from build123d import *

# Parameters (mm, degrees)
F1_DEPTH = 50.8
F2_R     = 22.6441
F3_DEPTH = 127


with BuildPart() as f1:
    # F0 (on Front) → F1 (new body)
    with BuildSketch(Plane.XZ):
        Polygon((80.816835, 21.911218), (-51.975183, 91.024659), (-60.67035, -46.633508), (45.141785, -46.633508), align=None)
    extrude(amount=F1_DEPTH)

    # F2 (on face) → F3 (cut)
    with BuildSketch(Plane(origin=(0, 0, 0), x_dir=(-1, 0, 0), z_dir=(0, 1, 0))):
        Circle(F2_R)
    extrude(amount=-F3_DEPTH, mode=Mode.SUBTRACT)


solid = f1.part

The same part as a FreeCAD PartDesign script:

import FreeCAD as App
import Part
import Sketcher
from FreeCAD import Vector
Q = App.Units.Quantity


def add_polygon(sketch, points):
    """Adds a closed chain of lines whose ends are joined by coincident constraints."""
    first, n = sketch.GeometryCount, len(points)
    for a, b in zip(points, points[1:] + points[:1]):
        sketch.addGeometry(Part.LineSegment(App.Vector(*a, 0), App.Vector(*b, 0)), False)
    for i in range(n):
        sketch.addConstraint(Sketcher.Constraint("Coincident", first + i, 2, first + (i + 1) % n, 1))

doc = App.newDocument("Part")
body = doc.addObject("PartDesign::Body", "Body")

sketch1 = body.newObject("Sketcher::SketchObject", "Sketch")
sketch1.AttachmentSupport = (doc.getObject("XZ_Plane"), [""])
sketch1.MapMode = "FlatFace"
add_polygon(sketch1, [(80.816835, 21.911218), (-51.975183, 91.024659), (-60.67035, -46.633508), (45.141785, -46.633508)])
sketch1.addConstraint([
    Sketcher.Constraint("Horizontal", 2),
    Sketcher.Constraint("Perpendicular", 0, 3),
    Sketcher.Constraint("Distance", 1, 137.932508),
    Sketcher.Constraint("Distance", 3, 77.27282),
    Sketcher.Constraint("DistanceX", 2, 1, 2, 2, 105.812135),
    Sketcher.Constraint("DistanceY", -1, 1, 0, 2, 91.024659),
    Sketcher.Constraint("DistanceX", 1, 2, -1, 1, 60.67035),
    Sketcher.Constraint("DistanceY", -1, 1, 3, 2, 21.911218),
])
pad1 = body.newObject("PartDesign::Pad", "Pad")
pad1.Profile = sketch1
pad1.Length = Q("2 in")

sketch2 = body.newObject("Sketcher::SketchObject", "Sketch001")
sketch2.AttachmentSupport = (doc.getObject("XZ_Plane"), [""])
sketch2.MapMode = "FlatFace"
sketch2.addGeometry(Part.Circle(Vector(0, 0, 0), Vector(0, 0, 1), 23), False)
sketch2.addConstraint([
    Sketcher.Constraint("Coincident", 0, 3, -1, 1),
    Sketcher.Constraint("Diameter", 0, Q("1.783 in")),
])
pocket1 = body.newObject("PartDesign::Pocket", "Pocket")
pocket1.Profile = sketch2
pocket1.Length = Q("5 in")
pocket1.Reversed = True

doc.recompute()
